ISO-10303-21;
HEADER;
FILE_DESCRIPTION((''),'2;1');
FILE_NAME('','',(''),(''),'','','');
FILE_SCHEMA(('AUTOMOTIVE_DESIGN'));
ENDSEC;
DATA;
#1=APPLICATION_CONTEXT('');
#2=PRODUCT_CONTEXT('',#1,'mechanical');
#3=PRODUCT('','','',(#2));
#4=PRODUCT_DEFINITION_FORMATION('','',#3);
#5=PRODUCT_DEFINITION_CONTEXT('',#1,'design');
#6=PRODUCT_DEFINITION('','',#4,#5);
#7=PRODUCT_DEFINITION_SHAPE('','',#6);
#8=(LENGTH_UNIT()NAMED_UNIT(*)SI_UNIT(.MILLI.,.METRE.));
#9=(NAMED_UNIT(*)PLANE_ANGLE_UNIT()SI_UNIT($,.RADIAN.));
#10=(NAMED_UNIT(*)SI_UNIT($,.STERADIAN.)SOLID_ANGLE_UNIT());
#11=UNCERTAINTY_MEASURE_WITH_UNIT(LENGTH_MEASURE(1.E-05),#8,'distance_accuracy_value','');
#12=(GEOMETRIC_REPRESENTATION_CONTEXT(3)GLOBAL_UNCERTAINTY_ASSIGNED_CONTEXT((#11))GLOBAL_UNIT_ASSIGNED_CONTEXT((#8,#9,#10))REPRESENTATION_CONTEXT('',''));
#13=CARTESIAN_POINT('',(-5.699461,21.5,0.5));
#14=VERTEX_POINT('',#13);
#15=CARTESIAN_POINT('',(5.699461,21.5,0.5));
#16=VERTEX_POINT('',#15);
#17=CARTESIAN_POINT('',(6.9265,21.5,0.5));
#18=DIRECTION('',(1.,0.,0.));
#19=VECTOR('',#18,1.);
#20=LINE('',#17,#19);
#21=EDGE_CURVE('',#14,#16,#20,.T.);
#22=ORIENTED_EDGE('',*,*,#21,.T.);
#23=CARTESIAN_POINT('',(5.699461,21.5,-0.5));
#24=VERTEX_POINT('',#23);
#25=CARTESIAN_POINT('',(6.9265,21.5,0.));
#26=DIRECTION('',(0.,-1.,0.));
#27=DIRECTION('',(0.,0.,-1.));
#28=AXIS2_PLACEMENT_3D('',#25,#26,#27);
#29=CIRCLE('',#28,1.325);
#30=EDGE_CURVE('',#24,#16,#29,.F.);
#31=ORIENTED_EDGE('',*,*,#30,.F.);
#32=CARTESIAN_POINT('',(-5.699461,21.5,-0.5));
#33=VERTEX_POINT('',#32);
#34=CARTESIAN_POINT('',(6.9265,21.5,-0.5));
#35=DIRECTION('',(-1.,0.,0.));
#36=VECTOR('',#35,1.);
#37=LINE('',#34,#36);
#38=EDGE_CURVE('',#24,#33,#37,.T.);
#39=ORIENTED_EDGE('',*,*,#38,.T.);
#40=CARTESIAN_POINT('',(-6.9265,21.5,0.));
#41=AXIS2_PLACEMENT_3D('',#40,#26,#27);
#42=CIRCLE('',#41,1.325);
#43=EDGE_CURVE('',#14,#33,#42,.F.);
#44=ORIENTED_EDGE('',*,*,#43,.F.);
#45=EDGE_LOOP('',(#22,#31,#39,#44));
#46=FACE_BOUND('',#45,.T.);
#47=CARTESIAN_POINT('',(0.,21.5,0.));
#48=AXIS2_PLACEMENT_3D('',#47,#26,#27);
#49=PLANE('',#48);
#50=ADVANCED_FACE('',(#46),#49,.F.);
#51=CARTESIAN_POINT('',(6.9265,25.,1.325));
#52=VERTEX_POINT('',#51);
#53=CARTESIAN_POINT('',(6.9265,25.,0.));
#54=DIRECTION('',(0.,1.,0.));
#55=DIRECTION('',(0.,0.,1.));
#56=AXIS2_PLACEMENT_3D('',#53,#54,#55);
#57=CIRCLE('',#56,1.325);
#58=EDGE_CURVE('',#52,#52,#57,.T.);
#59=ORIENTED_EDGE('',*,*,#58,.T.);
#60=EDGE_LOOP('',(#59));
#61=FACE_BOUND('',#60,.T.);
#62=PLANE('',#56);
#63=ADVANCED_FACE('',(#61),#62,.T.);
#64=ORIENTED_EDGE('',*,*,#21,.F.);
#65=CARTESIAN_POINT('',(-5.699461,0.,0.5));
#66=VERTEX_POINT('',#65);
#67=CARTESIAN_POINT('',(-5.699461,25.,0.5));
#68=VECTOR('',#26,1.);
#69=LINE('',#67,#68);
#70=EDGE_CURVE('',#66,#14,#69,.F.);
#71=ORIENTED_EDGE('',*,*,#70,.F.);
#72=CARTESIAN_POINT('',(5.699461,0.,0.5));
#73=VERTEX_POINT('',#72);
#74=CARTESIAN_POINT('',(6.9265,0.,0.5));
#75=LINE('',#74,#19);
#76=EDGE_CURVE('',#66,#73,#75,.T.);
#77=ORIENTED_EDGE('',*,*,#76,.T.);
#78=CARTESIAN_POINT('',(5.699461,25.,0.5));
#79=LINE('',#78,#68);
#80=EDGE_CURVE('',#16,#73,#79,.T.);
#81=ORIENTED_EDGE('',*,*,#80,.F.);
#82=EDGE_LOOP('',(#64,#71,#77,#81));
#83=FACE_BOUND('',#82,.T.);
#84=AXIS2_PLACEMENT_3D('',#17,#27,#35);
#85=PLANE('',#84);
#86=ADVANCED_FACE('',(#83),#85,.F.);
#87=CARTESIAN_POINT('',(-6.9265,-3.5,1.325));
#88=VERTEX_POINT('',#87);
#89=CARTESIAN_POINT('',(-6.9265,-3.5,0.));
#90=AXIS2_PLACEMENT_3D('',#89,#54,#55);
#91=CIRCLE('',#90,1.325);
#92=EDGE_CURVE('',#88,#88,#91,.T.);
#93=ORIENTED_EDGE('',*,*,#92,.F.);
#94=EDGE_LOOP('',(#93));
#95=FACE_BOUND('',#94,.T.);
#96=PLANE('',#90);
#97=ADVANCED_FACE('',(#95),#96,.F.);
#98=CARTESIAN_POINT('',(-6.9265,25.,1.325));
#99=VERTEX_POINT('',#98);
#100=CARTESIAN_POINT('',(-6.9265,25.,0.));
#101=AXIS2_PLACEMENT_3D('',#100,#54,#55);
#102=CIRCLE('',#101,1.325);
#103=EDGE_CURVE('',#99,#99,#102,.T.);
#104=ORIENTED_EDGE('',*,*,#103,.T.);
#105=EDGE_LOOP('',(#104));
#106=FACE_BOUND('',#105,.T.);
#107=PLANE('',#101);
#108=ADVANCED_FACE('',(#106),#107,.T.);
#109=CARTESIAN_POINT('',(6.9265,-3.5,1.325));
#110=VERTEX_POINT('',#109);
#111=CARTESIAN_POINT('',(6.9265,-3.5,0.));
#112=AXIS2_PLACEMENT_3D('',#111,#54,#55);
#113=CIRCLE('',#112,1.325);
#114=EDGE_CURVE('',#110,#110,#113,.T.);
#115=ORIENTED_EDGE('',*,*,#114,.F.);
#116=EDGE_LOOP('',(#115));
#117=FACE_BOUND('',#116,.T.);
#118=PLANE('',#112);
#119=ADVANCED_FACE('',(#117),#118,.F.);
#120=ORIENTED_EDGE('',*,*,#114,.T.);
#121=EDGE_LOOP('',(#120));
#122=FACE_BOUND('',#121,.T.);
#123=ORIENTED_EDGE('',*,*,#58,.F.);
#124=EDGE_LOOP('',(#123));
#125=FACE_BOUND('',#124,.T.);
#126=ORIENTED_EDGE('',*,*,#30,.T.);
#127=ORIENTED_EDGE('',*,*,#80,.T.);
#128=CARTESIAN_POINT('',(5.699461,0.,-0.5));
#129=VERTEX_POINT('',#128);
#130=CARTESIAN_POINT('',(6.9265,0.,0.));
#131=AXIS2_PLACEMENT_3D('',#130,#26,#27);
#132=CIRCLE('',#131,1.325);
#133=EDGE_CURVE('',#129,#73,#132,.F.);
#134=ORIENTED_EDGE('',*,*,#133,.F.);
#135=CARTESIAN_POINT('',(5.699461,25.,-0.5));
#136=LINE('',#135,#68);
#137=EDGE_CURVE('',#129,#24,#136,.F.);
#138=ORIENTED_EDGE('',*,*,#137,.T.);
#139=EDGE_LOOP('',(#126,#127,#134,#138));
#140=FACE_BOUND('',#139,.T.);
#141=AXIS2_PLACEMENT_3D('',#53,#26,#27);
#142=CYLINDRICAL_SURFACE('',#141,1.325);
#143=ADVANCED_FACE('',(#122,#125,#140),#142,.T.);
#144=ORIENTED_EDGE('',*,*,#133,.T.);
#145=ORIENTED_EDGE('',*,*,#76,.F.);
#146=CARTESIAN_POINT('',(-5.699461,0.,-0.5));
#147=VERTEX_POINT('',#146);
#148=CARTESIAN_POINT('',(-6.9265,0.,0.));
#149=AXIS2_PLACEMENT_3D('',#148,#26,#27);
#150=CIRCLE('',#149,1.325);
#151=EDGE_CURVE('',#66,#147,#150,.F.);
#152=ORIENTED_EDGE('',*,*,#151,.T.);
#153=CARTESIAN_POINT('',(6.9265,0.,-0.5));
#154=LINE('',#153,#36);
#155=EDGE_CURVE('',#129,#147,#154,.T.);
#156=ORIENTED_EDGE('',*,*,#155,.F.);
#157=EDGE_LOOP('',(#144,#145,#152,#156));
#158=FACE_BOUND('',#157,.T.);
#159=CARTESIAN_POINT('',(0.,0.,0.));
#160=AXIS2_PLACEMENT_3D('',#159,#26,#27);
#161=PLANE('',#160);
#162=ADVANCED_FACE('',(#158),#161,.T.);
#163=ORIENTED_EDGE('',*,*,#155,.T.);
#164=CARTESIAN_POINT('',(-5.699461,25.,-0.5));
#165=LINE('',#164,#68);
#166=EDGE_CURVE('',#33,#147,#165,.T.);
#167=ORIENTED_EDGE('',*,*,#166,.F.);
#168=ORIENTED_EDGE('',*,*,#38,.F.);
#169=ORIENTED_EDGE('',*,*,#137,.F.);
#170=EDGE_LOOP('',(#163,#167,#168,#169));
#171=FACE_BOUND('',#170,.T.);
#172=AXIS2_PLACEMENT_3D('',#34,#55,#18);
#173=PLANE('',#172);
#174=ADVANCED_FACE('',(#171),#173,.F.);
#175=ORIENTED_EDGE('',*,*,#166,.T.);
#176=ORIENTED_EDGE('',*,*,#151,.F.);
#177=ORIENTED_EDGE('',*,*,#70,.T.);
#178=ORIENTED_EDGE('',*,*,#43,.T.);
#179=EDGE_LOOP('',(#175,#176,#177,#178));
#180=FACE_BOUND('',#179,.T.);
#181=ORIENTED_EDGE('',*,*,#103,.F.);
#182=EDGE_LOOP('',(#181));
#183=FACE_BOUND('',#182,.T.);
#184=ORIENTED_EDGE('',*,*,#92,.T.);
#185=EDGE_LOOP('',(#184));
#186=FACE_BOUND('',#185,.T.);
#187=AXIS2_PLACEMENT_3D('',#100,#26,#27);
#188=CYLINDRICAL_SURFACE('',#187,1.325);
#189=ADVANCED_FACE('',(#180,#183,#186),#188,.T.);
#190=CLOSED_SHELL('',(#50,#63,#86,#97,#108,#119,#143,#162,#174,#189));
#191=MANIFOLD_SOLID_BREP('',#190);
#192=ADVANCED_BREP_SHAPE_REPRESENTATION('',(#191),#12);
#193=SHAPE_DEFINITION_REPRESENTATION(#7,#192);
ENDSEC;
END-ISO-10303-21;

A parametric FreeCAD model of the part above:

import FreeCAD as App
import Part
import Sketcher
from FreeCAD import Vector
Q = App.Units.Quantity

doc = App.newDocument("Part")
params = doc.addObject("Spreadsheet::Sheet", "Params")
for row, (alias, value) in enumerate([
    ("sketch1_height", "1 mm"),
    ("pad1_length", "21.5 mm"),
    ("sketch2_diameter", "2.65 mm"),
    ("pad2_length", "28.5 mm"),
], start=1):
    params.set(f"A{row}", alias)
    params.set(f"B{row}", "=" + value)
    params.setAlias(f"B{row}", alias)

body = doc.addObject("PartDesign::Body", "Body")

# Sketch on XZ plane
sketch1 = doc.addObject("Sketcher::SketchObject", "Sketch")
body.addObject(sketch1)
sketch1.AttachmentSupport = (doc.XZ_Plane, [""])
sketch1.MapMode = "FlatFace"
sketch1.addGeometry([
    Part.LineSegment(Vector(-6.9, -0.5, 0), Vector(-6.9, 0.5, 0)),
    Part.LineSegment(Vector(-6.9, 0.5, 0), Vector(6.9, 0.5, 0)),
    Part.LineSegment(Vector(6.9, 0.5, 0), Vector(6.9, -0.5, 0)),
    Part.LineSegment(Vector(6.9, -0.5, 0), Vector(-6.9, -0.5, 0)),
], False)
sketch1.addConstraint([
    Sketcher.Constraint("Coincident", 0, 2, 1, 1),
    Sketcher.Constraint("Coincident", 1, 2, 2, 1),
    Sketcher.Constraint("Coincident", 2, 2, 3, 1),
    Sketcher.Constraint("Coincident", 3, 2, 0, 1),
    Sketcher.Constraint("Vertical", 0),
    Sketcher.Constraint("Horizontal", 1),
    Sketcher.Constraint("Vertical", 2),
    Sketcher.Constraint("Horizontal", 3),
    Sketcher.Constraint("Symmetric", 0, 2, 2, 2, -1, 1),
    Sketcher.Constraint("DistanceY", 0, 1, 0, 2, Q("1 mm")),
    Sketcher.Constraint("DistanceX", 1, 1, 1, 2, Q("13.853 mm")),
])
sketch1.setExpression("Constraints[9]", "Params.sketch1_height")
pad1 = doc.addObject("PartDesign::Pad", "Pad")
body.addObject(pad1)
pad1.Profile = sketch1
pad1.setExpression("Length", "Params.pad1_length")
pad1.Reversed = True

# Sketch on XZ plane
sketch2 = doc.addObject("Sketcher::SketchObject", "Sketch001")
body.addObject(sketch2)
sketch2.AttachmentSupport = (doc.XZ_Plane, [""])
sketch2.MapMode = "FlatFace"
sketch2.AttachmentOffset = App.Placement(Vector(0, 0, -10.75), App.Rotation())
sketch2.addGeometry([
    Part.Circle(Vector(-6.9, 0, 0), Vector(0, 0, 1), 1.3),
    Part.Circle(Vector(6.9, 0, 0), Vector(0, 0, 1), 1.3),
], False)
sketch2.addConstraint([
    Sketcher.Constraint("Equal", 0, 1),
    Sketcher.Constraint("Symmetric", 0, 3, 1, 3, -1, 1),
    Sketcher.Constraint("PointOnObject", 0, 3, -1),
    Sketcher.Constraint("Diameter", 0, Q("2.65 mm")),
    Sketcher.Constraint("DistanceX", 0, 3, 1, 3, Q("13.853 mm")),
])
sketch2.setExpression("Constraints[3]", "Params.sketch2_diameter")
pad2 = doc.addObject("PartDesign::Pad", "Pad001")
body.addObject(pad2)
pad2.Profile = sketch2
pad2.setExpression("Length", "Params.pad2_length")
pad2.Midplane = True

doc.recompute()
